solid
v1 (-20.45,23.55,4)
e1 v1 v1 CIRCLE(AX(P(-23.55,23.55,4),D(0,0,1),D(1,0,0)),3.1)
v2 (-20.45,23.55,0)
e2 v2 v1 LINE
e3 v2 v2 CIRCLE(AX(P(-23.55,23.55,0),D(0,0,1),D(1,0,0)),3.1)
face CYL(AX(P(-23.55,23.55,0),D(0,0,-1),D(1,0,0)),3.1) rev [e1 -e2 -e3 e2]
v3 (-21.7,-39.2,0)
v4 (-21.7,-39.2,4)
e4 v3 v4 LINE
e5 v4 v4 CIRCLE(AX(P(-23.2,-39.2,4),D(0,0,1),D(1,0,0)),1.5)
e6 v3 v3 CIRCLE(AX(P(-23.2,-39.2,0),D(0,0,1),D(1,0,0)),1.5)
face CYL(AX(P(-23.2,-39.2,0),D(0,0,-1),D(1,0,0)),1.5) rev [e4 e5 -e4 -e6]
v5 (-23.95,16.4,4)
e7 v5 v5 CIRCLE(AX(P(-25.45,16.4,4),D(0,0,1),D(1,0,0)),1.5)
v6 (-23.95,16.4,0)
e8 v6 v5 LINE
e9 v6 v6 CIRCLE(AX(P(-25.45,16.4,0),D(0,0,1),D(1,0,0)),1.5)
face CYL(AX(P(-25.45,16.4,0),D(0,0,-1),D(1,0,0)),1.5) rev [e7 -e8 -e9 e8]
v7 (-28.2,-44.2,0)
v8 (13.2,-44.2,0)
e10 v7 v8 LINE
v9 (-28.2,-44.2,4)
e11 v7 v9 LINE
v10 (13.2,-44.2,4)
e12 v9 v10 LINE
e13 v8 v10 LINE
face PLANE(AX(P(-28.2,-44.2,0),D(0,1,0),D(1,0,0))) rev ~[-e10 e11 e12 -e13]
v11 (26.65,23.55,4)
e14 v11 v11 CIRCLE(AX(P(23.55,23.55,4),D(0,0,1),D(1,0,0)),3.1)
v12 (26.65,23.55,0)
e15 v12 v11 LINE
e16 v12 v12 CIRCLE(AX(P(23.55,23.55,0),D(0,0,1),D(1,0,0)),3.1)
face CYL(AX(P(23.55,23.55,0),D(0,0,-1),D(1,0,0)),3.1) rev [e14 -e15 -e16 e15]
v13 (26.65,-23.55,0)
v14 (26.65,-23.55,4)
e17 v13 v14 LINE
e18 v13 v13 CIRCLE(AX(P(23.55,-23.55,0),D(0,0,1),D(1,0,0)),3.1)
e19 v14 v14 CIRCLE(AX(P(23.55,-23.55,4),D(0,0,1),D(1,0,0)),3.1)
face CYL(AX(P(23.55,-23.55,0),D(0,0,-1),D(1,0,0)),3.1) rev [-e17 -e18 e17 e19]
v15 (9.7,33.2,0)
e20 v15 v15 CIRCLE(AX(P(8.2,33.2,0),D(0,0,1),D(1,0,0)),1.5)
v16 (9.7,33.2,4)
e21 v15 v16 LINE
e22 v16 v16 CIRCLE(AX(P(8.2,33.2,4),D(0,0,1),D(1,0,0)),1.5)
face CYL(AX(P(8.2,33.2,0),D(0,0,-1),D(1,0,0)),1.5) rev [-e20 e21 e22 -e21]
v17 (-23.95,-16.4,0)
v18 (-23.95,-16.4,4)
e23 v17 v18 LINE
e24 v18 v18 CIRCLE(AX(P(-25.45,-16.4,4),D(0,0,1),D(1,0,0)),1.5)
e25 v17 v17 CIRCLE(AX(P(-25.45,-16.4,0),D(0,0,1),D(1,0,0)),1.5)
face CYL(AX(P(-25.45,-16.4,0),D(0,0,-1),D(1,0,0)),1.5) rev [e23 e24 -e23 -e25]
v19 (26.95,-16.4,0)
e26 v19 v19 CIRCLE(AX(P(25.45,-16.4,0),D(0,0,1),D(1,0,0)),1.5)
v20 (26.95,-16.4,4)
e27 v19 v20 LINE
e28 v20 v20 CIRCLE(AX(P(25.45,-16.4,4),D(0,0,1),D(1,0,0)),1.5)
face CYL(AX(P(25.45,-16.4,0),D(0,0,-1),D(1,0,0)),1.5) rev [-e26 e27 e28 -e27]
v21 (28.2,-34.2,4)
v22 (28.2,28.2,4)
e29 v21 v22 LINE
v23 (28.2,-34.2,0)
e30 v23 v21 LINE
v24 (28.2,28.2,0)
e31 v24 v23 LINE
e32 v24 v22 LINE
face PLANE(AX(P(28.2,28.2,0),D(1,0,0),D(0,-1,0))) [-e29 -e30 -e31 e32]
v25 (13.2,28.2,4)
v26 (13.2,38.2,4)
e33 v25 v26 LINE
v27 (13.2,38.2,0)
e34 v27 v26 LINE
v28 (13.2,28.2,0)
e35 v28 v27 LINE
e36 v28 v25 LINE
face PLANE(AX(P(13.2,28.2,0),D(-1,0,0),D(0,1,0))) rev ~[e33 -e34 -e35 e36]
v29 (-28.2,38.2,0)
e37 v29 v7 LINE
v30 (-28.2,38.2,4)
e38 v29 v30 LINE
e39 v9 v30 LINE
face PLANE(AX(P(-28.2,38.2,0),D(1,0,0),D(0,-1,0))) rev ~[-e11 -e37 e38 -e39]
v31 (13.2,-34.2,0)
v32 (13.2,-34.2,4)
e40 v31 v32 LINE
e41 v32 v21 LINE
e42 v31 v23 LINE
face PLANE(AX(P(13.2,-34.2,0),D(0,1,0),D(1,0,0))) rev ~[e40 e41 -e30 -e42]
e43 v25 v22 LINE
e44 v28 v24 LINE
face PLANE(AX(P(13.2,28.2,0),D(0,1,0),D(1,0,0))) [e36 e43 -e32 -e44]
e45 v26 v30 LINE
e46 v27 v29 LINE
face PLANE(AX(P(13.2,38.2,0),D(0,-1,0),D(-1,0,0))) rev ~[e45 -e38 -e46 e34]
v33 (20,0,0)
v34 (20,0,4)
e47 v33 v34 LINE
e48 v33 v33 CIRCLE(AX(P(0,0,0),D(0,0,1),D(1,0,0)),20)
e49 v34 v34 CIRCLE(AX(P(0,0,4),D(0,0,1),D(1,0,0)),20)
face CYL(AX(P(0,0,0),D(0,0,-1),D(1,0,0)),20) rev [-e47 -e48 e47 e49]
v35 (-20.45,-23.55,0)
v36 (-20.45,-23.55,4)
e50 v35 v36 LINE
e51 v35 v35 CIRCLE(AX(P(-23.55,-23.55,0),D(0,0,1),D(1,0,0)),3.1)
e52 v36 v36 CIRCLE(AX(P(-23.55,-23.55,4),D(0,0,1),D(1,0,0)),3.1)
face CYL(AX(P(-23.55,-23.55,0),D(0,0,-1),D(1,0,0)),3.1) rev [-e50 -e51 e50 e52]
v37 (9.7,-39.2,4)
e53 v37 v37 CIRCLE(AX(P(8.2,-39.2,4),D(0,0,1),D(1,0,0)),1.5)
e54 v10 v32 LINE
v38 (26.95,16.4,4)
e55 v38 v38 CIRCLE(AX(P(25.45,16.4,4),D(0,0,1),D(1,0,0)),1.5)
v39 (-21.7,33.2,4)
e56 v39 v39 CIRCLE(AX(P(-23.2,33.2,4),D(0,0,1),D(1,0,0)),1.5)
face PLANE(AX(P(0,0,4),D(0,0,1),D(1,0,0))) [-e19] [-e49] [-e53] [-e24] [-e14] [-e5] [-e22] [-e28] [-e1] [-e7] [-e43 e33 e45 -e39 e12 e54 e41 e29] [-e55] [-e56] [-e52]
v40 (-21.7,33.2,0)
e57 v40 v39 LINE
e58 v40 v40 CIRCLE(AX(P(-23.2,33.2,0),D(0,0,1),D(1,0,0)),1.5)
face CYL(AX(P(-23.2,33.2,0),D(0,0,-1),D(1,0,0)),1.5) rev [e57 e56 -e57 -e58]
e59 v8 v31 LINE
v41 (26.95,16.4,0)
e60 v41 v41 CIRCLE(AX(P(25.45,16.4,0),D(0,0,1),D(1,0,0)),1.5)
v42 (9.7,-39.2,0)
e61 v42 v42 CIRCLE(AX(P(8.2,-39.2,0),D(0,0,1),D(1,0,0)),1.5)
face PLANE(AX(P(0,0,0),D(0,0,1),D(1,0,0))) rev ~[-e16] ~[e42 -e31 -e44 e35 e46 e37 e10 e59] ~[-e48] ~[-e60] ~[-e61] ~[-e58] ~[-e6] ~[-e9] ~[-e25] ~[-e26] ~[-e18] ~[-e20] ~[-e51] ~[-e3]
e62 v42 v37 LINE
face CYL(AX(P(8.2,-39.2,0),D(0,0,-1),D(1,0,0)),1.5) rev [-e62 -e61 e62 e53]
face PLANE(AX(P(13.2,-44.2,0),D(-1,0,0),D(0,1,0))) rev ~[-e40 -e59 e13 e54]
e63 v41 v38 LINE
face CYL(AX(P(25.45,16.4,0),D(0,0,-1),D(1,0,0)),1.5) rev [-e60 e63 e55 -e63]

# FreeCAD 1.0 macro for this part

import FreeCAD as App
import Part
import Sketcher

V = App.Vector

doc = App.newDocument("Part")
params = doc.addObject("Spreadsheet::Sheet", "Params")
for row, (alias, value) in enumerate([
    ("sketch1_diameter", "3 mm"),
    ("sketch1_diameter2", "40 mm"),
    ("sketch1_diameter3", "6.2 mm"),
    ("sketch1_width", "15 mm"),
    ("sketch1_height", "10 mm"),
    ("pad1_length", "4 mm"),
], start=1):
    params.set(f"A{row}", alias)
    params.set(f"B{row}", "=" + value)
    params.setAlias(f"B{row}", alias)

body = doc.addObject("PartDesign::Body", "Body")

# Sketch on XY plane
sketch1 = body.newObject("Sketcher::SketchObject", "Sketch")
sketch1.AttachmentSupport = (doc.getObject("XY_Plane"), [""])
sketch1.MapMode = "FlatFace"
sketch1.addGeometry([
    Part.LineSegment(V(-28.2, 38.2, 0), V(-28.2, -44.2, 0)),  # 0
    Part.LineSegment(V(-28.2, -44.2, 0), V(13.2, -44.2, 0)),  # 1
    Part.LineSegment(V(13.2, -44.2, 0), V(13.2, -34.2, 0)),  # 2
    Part.LineSegment(V(13.2, -34.2, 0), V(28.2, -34.2, 0)),  # 3
    Part.LineSegment(V(28.2, -34.2, 0), V(28.2, 28.2, 0)),  # 4
    Part.LineSegment(V(28.2, 28.2, 0), V(13.2, 28.2, 0)),  # 5
    Part.LineSegment(V(13.2, 28.2, 0), V(13.2, 38.2, 0)),  # 6
    Part.LineSegment(V(13.2, 38.2, 0), V(-28.2, 38.2, 0)),  # 7
    Part.Circle(V(-23.2, 33.2, 0), V(0, 0, 1), 1.5),  # 8
    Part.Circle(V(8.2, 33.2, 0), V(0, 0, 1), 1.5),  # 9
    Part.Circle(V(23.55, 23.55, 0), V(0, 0, 1), 3.1),  # 10
    Part.Circle(V(-23.55, -23.55, 0), V(0, 0, 1), 3.1),  # 11
    Part.Circle(V(-25.45, -16.4, 0), V(0, 0, 1), 1.5),  # 12
    Part.Circle(V(23.55, -23.55, 0), V(0, 0, 1), 3.1),  # 13
    Part.Circle(V(25.45, -16.4, 0), V(0, 0, 1), 1.5),  # 14
    Part.Circle(V(-25.45, 16.4, 0), V(0, 0, 1), 1.5),  # 15
    Part.Circle(V(-23.55, 23.55, 0), V(0, 0, 1), 3.1),  # 16
    Part.Circle(V(0, 0, 0), V(0, 0, 1), 20),  # 17
    Part.Circle(V(25.45, 16.4, 0), V(0, 0, 1), 1.5),  # 18
    Part.Circle(V(8.2, -39.2, 0), V(0, 0, 1), 1.5),  # 19
    Part.Circle(V(-23.2, -39.2, 0), V(0, 0, 1), 1.5),  # 20
], False)
sketch1.addConstraint([
    Sketcher.Constraint("Coincident", 0, 2, 1, 1),
    Sketcher.Constraint("Coincident", 1, 2, 2, 1),
    Sketcher.Constraint("Coincident", 2, 2, 3, 1),
    Sketcher.Constraint("Coincident", 3, 2, 4, 1),
    Sketcher.Constraint("Coincident", 4, 2, 5, 1),
    Sketcher.Constraint("Coincident", 5, 2, 6, 1),
    Sketcher.Constraint("Coincident", 6, 2, 7, 1),
    Sketcher.Constraint("Coincident", 7, 2, 0, 1),
    Sketcher.Constraint("Vertical", 0),
    Sketcher.Constraint("Horizontal", 1),
    Sketcher.Constraint("Vertical", 2),
    Sketcher.Constraint("Horizontal", 3),
    Sketcher.Constraint("Vertical", 4),
    Sketcher.Constraint("Horizontal", 5),
    Sketcher.Constraint("Vertical", 6),
    Sketcher.Constraint("Horizontal", 7),
    Sketcher.Constraint("Coincident", 17, 3, -1, 1),
    Sketcher.Constraint("Equal", 8, 9),
    Sketcher.Constraint("Equal", 10, 11),
    Sketcher.Constraint("Equal", 9, 12),
    Sketcher.Constraint("Equal", 11, 13),
    Sketcher.Constraint("Equal", 12, 14),
    Sketcher.Constraint("Equal", 14, 15),
    Sketcher.Constraint("Equal", 13, 16),
    Sketcher.Constraint("Equal", 15, 18),
    Sketcher.Constraint("Equal", 18, 19),
    Sketcher.Constraint("Equal", 19, 20),
    Sketcher.Constraint("Symmetric", 10, 3, 11, 3, -1, 1),
    Sketcher.Constraint("Symmetric", 14, 3, 15, 3, -1, 1),
    Sketcher.Constraint("Symmetric", 13, 3, 16, 3, -1, 1),
    Sketcher.Constraint("Symmetric", 12, 3, 18, 3, -1, 1),
    Sketcher.Constraint("Symmetric", 11, 3, 13, 3, -2),
    Sketcher.Constraint("Symmetric", 12, 3, 14, 3, -2),
    Sketcher.Constraint("Horizontal", 8, 3, 9, 3),
    Sketcher.Constraint("Horizontal", 19, 3, 20, 3),
    Sketcher.Constraint("Vertical", 9, 3, 19, 3),
    Sketcher.Constraint("Vertical", 8, 3, 20, 3),
    Sketcher.Constraint("Vertical", 2, 2, 5, 2),
    Sketcher.Constraint("Equal", 2, 6),
    Sketcher.Constraint("Diameter", 8, 3.0),
    Sketcher.Constraint("Diameter", 17, 40.0),
    Sketcher.Constraint("Diameter", 10, 6.2),
    Sketcher.Constraint("DistanceX", 3, 1, 3, 2, 15.0),
    Sketcher.Constraint("DistanceY", 2, 1, 2, 2, 10.0),
    Sketcher.Constraint("DistanceX", 0, 2, 20, 3, 5.0),
    Sketcher.Constraint("DistanceY", 0, 2, 20, 3, 5.0),
    Sketcher.Constraint("DistanceX", 19, 3, 1, 2, 5.0),
    Sketcher.Constraint("DistanceY", 4, 2, 9, 3, 5.0),
    Sketcher.Constraint("DistanceY", 12, 3, -1, 1, 16.4),
    Sketcher.Constraint("DistanceX", -1, 1, 10, 3, 23.55),
    Sketcher.Constraint("DistanceY", -1, 1, 10, 3, 23.55),
    Sketcher.Constraint("DistanceX", 12, 3, -1, 1, 25.45),
    Sketcher.Constraint("DistanceX", 1, 1, 1, 2, 41.4),
    Sketcher.Constraint("DistanceY", 0, 2, 0, 1, 82.4),
    Sketcher.Constraint("DistanceX", 8, 3, -1, 1, 23.2),
    Sketcher.Constraint("DistanceY", -1, 1, 8, 3, 33.2),
])
sketch1.setExpression("Constraints[39]", "Params.sketch1_diameter")
sketch1.setExpression("Constraints[40]", "Params.sketch1_diameter2")
sketch1.setExpression("Constraints[41]", "Params.sketch1_diameter3")
sketch1.setExpression("Constraints[42]", "Params.sketch1_width")
sketch1.setExpression("Constraints[43]", "Params.sketch1_height")
pad1 = body.newObject("PartDesign::Pad", "Pad")
pad1.Profile = sketch1
pad1.setExpression("Length", "Params.pad1_length")

doc.recompute()
